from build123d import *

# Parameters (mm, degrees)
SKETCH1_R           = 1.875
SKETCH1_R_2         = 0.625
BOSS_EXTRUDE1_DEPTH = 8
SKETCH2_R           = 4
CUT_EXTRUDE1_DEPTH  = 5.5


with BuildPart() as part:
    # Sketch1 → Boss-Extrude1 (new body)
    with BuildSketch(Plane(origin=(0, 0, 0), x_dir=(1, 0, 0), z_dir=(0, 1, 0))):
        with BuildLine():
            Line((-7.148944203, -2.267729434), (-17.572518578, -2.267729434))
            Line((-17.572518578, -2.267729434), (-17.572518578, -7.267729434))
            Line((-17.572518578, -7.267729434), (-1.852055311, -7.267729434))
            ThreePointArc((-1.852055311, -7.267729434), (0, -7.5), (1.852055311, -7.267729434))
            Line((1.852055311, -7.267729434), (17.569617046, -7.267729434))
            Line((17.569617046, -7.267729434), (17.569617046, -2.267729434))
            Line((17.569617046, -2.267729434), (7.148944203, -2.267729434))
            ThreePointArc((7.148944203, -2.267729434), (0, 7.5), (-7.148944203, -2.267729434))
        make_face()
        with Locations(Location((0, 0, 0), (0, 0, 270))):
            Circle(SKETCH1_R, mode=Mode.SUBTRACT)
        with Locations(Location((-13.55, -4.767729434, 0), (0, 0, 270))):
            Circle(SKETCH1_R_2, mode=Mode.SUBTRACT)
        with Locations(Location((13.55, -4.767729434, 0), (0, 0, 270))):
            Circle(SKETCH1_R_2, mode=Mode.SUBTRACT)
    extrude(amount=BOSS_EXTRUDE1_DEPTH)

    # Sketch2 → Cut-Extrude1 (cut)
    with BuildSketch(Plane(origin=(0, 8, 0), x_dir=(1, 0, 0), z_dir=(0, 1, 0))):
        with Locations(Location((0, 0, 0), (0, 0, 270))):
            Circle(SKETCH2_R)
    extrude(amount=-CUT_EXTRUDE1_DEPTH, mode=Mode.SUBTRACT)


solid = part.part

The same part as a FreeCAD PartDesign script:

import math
import FreeCAD as App
import Part
import Sketcher

V = App.Vector

doc = App.newDocument("Part")
body = doc.addObject("PartDesign::Body", "Body")

# Sketch on XZ plane
sketch1 = doc.addObject("Sketcher::SketchObject", "Sketch")
body.addObject(sketch1)
sketch1.AttachmentSupport = (doc.XZ_Plane, [""])
sketch1.MapMode = "FlatFace"
sketch1.addGeometry(Part.LineSegment(V(-7.1, 2.3, 0), V(-17.6, 2.3, 0)), False)
sketch1.addGeometry(Part.LineSegment(V(-17.6, 2.3, 0), V(-17.6, 7.3, 0)), False)
sketch1.addGeometry(Part.LineSegment(V(-17.6, 7.3, 0), V(-1.9, 7.3, 0)), False)
sketch1.addGeometry(Part.ArcOfCircle(Part.Circle(V(0, 0, 0), V(0, 0, 1), 7.5), math.radians(76), math.radians(104)), False)
sketch1.addGeometry(Part.LineSegment(V(1.9, 7.3, 0), V(17.6, 7.3, 0)), False)
sketch1.addGeometry(Part.LineSegment(V(17.6, 7.3, 0), V(17.6, 2.3, 0)), False)
sketch1.addGeometry(Part.LineSegment(V(17.6, 2.3, 0), V(7.1, 2.3, 0)), False)
sketch1.addGeometry(Part.ArcOfCircle(Part.Circle(V(0, 0, 0), V(0, 0, 1), 7.5), math.radians(162), math.radians(378)), False)
sketch1.addGeometry(Part.Circle(V(-13.6, 4.8, 0), V(0, 0, 1), 0.6), False)
sketch1.addGeometry(Part.Circle(V(13.6, 4.8, 0), V(0, 0, 1), 0.6), False)
sketch1.addGeometry(Part.Circle(V(0, 0, 0), V(0, 0, 1), 1.9), False)
sketch1.addConstraint(Sketcher.Constraint("Coincident", 0, 2, 1, 1))
sketch1.addConstraint(Sketcher.Constraint("Coincident", 1, 2, 2, 1))
sketch1.addConstraint(Sketcher.Constraint("Coincident", 2, 2, 3, 2))
sketch1.addConstraint(Sketcher.Constraint("Coincident", 3, 1, 4, 1))
sketch1.addConstraint(Sketcher.Constraint("Coincident", 4, 2, 5, 1))
sketch1.addConstraint(Sketcher.Constraint("Coincident", 5, 2, 6, 1))
sketch1.addConstraint(Sketcher.Constraint("Coincident", 6, 2, 7, 2))
sketch1.addConstraint(Sketcher.Constraint("Coincident", 7, 1, 0, 1))
sketch1.addConstraint(Sketcher.Constraint("Horizontal", 0))
sketch1.addConstraint(Sketcher.Constraint("Vertical", 1))
sketch1.addConstraint(Sketcher.Constraint("Horizontal", 2))
sketch1.addConstraint(Sketcher.Constraint("Horizontal", 4))
sketch1.addConstraint(Sketcher.Constraint("Vertical", 5))
sketch1.addConstraint(Sketcher.Constraint("Horizontal", 6))
sketch1.addConstraint(Sketcher.Constraint("Coincident", 3, 3, -1, 1))
sketch1.addConstraint(Sketcher.Constraint("Coincident", 7, 3, -1, 1))
sketch1.addConstraint(Sketcher.Constraint("Coincident", 10, 3, -1, 1))
sketch1.addConstraint(Sketcher.Constraint("Equal", 3, 7))
sketch1.addConstraint(Sketcher.Constraint("Equal", 8, 9))
sketch1.addConstraint(Sketcher.Constraint("Symmetric", 8, 3, 9, 3, -2))
sketch1.addConstraint(Sketcher.Constraint("Horizontal", 2, 2, 3, 1))
sketch1.addConstraint(Sketcher.Constraint("Horizontal", 0, 2, 5, 2))
sketch1.addConstraint(Sketcher.Constraint("Radius", 3, 7.5))
sketch1.addConstraint(Sketcher.Constraint("Diameter", 8, 1.25))
sketch1.addConstraint(Sketcher.Constraint("Diameter", 10, 3.75))
sketch1.addConstraint(Sketcher.Constraint("DistanceY", 1, 1, 1, 2, 5.0))
sketch1.addConstraint(Sketcher.Constraint("DistanceX", 8, 3, 9, 3, 27.1))
sketch1.addConstraint(Sketcher.Constraint("DistanceY", 0, 2, 8, 3, 2.5))
sketch1.addConstraint(Sketcher.Constraint("DistanceX", 4, 1, 4, 2, 15.717562))
sketch1.addConstraint(Sketcher.Constraint("DistanceX", 0, 2, 0, 1, 10.423574))
sketch1.addConstraint(Sketcher.Constraint("DistanceX", 2, 1, 2, 2, 15.720463))
pad1 = doc.addObject("PartDesign::Pad", "Pad")
body.addObject(pad1)
pad1.Profile = sketch1
pad1.Length = 8
pad1.Reversed = True

# Sketch on XZ plane
sketch2 = doc.addObject("Sketcher::SketchObject", "Sketch001")
body.addObject(sketch2)
sketch2.AttachmentSupport = (doc.XZ_Plane, [""])
sketch2.MapMode = "FlatFace"
sketch2.AttachmentOffset = App.Placement(V(0, 0, -8), App.Rotation())
sketch2.addGeometry(Part.Circle(V(0, 0, 0), V(0, 0, 1), 4), False)
sketch2.addConstraint(Sketcher.Constraint("Coincident", 0, 3, -1, 1))
sketch2.addConstraint(Sketcher.Constraint("Diameter", 0, 8.0))
pocket1 = doc.addObject("PartDesign::Pocket", "Pocket")
body.addObject(pocket1)
pocket1.Profile = sketch2
pocket1.Length = 5.5
pocket1.Reversed = True

doc.recompute()
